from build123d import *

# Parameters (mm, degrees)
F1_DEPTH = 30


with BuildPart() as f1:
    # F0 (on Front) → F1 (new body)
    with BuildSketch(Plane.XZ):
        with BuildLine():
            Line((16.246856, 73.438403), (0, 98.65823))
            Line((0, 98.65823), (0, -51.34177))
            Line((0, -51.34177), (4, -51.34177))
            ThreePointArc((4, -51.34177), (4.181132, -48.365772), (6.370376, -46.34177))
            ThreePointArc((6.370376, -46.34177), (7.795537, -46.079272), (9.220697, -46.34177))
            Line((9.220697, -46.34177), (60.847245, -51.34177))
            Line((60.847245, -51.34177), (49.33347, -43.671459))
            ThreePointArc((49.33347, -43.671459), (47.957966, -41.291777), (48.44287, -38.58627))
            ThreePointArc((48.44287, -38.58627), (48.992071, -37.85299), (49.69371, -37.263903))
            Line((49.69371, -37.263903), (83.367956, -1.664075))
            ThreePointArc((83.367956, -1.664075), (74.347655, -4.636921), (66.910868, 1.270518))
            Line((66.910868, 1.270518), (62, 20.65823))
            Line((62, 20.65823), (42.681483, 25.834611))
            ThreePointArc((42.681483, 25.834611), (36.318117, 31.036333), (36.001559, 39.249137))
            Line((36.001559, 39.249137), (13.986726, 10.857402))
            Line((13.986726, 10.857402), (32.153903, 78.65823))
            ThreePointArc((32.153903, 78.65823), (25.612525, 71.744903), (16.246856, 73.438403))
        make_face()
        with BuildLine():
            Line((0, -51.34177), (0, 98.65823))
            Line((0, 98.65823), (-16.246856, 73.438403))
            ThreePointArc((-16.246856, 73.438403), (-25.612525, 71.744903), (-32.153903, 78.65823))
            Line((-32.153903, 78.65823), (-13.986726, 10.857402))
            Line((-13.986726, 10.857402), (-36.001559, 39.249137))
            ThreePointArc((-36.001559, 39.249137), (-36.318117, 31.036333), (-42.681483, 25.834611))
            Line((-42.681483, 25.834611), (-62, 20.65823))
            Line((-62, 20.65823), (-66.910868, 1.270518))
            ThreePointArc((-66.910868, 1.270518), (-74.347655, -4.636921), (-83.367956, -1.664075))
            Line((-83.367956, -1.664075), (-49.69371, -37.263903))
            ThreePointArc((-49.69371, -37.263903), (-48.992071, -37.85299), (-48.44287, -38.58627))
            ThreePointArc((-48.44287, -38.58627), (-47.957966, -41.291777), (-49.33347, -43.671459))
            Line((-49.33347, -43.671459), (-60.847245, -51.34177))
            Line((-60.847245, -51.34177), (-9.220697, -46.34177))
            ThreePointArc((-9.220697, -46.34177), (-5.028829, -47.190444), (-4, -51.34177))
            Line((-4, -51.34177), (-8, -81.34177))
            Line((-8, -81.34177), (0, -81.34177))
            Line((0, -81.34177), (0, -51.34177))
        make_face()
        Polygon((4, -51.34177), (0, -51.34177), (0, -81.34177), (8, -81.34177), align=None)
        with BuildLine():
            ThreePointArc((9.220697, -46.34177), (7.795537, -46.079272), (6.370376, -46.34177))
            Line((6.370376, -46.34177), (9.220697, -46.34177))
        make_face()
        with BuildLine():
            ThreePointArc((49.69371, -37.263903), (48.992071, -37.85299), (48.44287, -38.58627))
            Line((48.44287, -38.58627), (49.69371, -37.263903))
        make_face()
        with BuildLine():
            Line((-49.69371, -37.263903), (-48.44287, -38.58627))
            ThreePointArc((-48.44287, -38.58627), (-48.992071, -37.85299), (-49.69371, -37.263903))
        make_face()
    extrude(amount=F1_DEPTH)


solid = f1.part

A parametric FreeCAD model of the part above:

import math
import FreeCAD as App
import Part
import Sketcher
Q = App.Units.Quantity

doc = App.newDocument("Part")
body = doc.addObject("PartDesign::Body", "Body")

# Sketch on XZ plane
sketch1 = body.newObject("Sketcher::SketchObject", "Sketch")
sketch1.AttachmentSupport = (doc.getObject("XZ_Plane"), [""])
sketch1.MapMode = "FlatFace"
sketch1.addGeometry(Part.ArcOfCircle(Part.Circle(App.Vector(22.5, 81.2, 0), App.Vector(0, 0, 1), 10), math.radians(-129), math.radians(-15)), False)
sketch1.addGeometry(Part.LineSegment(App.Vector(16.2, 73.4, 0), App.Vector(0, 98.7, 0)), False)
sketch1.addGeometry(Part.LineSegment(App.Vector(0, 98.7, 0), App.Vector(-16.2, 73.4, 0)), False)
sketch1.addGeometry(Part.ArcOfCircle(Part.Circle(App.Vector(-22.5, 81.2, 0), App.Vector(0, 0, 1), 10), math.radians(-165), math.radians(-51)), False)
sketch1.addGeometry(Part.LineSegment(App.Vector(-32.2, 78.7, 0), App.Vector(-14, 10.9, 0)), False)
sketch1.addGeometry(Part.LineSegment(App.Vector(-14, 10.9, 0), App.Vector(-36, 39.2, 0)), False)
sketch1.addGeometry(Part.ArcOfCircle(Part.Circle(App.Vector(-45.3, 35.5, 0), App.Vector(0, 0, 1), 10), math.radians(-75), math.radians(22)), False)
sketch1.addGeometry(Part.LineSegment(App.Vector(-42.7, 25.8, 0), App.Vector(-62, 20.7, 0)), False)
sketch1.addGeometry(Part.LineSegment(App.Vector(-62, 20.7, 0), App.Vector(-66.9, 1.3, 0)), False)
sketch1.addGeometry(Part.ArcOfCircle(Part.Circle(App.Vector(-76.1, 5.2, 0), App.Vector(0, 0, 1), 10), math.radians(-137), math.radians(-23)), False)
sketch1.addGeometry(Part.LineSegment(App.Vector(-83.4, -1.7, 0), App.Vector(-49.7, -37.3, 0)), False)
sketch1.addGeometry(Part.LineSegment(App.Vector(-49.7, -37.3, 0), App.Vector(-48.4, -38.6, 0)), False)
sketch1.addGeometry(Part.ArcOfCircle(Part.Circle(App.Vector(-51.9, -40.6, 0), App.Vector(0, 0, 1), 4), math.radians(-50), math.radians(30)), False)
sketch1.addGeometry(Part.LineSegment(App.Vector(-49.3, -43.7, 0), App.Vector(-60.8, -51.3, 0)), False)
sketch1.addGeometry(Part.LineSegment(App.Vector(-60.8, -51.3, 0), App.Vector(-9.2, -46.3, 0)), False)
sketch1.addGeometry(Part.ArcOfCircle(Part.Circle(App.Vector(-7.8, -50.1, 0), App.Vector(0, 0, 1), 4), math.radians(-18), math.radians(111)), False)
sketch1.addGeometry(Part.LineSegment(App.Vector(-4, -51.3, 0), App.Vector(-8, -81.3, 0)), False)
sketch1.addGeometry(Part.LineSegment(App.Vector(-8, -81.3, 0), App.Vector(8, -81.3, 0)), False)
sketch1.addGeometry(Part.LineSegment(App.Vector(8, -81.3, 0), App.Vector(4, -51.3, 0)), False)
sketch1.addGeometry(Part.ArcOfCircle(Part.Circle(App.Vector(7.8, -50.1, 0), App.Vector(0, 0, 1), 4), math.radians(111), math.radians(198)), False)
sketch1.addGeometry(Part.LineSegment(App.Vector(6.4, -46.3, 0), App.Vector(9.2, -46.3, 0)), False)
sketch1.addGeometry(Part.LineSegment(App.Vector(9.2, -46.3, 0), App.Vector(60.8, -51.3, 0)), False)
sketch1.addGeometry(Part.LineSegment(App.Vector(60.8, -51.3, 0), App.Vector(49.3, -43.7, 0)), False)
sketch1.addGeometry(Part.ArcOfCircle(Part.Circle(App.Vector(51.9, -40.6, 0), App.Vector(0, 0, 1), 4), math.radians(150), math.radians(230)), False)
sketch1.addGeometry(Part.LineSegment(App.Vector(48.4, -38.6, 0), App.Vector(49.7, -37.3, 0)), False)
sketch1.addGeometry(Part.LineSegment(App.Vector(49.7, -37.3, 0), App.Vector(83.4, -1.7, 0)), False)
sketch1.addGeometry(Part.ArcOfCircle(Part.Circle(App.Vector(76.1, 5.2, 0), App.Vector(0, 0, 1), 10), math.radians(-157), math.radians(-43)), False)
sketch1.addGeometry(Part.LineSegment(App.Vector(66.9, 1.3, 0), App.Vector(62, 20.7, 0)), False)
sketch1.addGeometry(Part.LineSegment(App.Vector(62, 20.7, 0), App.Vector(42.7, 25.8, 0)), False)
sketch1.addGeometry(Part.ArcOfCircle(Part.Circle(App.Vector(45.3, 35.5, 0), App.Vector(0, 0, 1), 10), math.radians(158), math.radians(255)), False)
sketch1.addGeometry(Part.LineSegment(App.Vector(36, 39.2, 0), App.Vector(14, 10.9, 0)), False)
sketch1.addGeometry(Part.LineSegment(App.Vector(14, 10.9, 0), App.Vector(32.2, 78.7, 0)), False)
sketch1.addConstraint(Sketcher.Constraint("Coincident", 0, 1, 1, 1))
sketch1.addConstraint(Sketcher.Constraint("Coincident", 1, 2, 2, 1))
sketch1.addConstraint(Sketcher.Constraint("Coincident", 2, 2, 3, 2))
sketch1.addConstraint(Sketcher.Constraint("Tangent", 3, 1, 4, 1))
sketch1.addConstraint(Sketcher.Constraint("Coincident", 4, 2, 5, 1))
sketch1.addConstraint(Sketcher.Constraint("Coincident", 5, 2, 6, 2))
sketch1.addConstraint(Sketcher.Constraint("Tangent", 6, 1, 7, 1))
sketch1.addConstraint(Sketcher.Constraint("Coincident", 7, 2, 8, 1))
sketch1.addConstraint(Sketcher.Constraint("Coincident", 8, 2, 9, 2))
sketch1.addConstraint(Sketcher.Constraint("Tangent", 9, 1, 10, 1))
sketch1.addConstraint(Sketcher.Constraint("Coincident", 10, 2, 11, 1))
sketch1.addConstraint(Sketcher.Constraint("Coincident", 11, 2, 12, 2))
sketch1.addConstraint(Sketcher.Constraint("Coincident", 12, 1, 13, 1))
sketch1.addConstraint(Sketcher.Constraint("Coincident", 13, 2, 14, 1))
sketch1.addConstraint(Sketcher.Constraint("Coincident", 14, 2, 15, 2))
sketch1.addConstraint(Sketcher.Constraint("Coincident", 15, 1, 16, 1))
sketch1.addConstraint(Sketcher.Constraint("Coincident", 16, 2, 17, 1))
sketch1.addConstraint(Sketcher.Constraint("Coincident", 17, 2, 18, 1))
sketch1.addConstraint(Sketcher.Constraint("Coincident", 18, 2, 19, 2))
sketch1.addConstraint(Sketcher.Constraint("Coincident", 19, 1, 20, 1))
sketch1.addConstraint(Sketcher.Constraint("Coincident", 20, 2, 21, 1))
sketch1.addConstraint(Sketcher.Constraint("Coincident", 21, 2, 22, 1))
sketch1.addConstraint(Sketcher.Constraint("Coincident", 22, 2, 23, 2))
sketch1.addConstraint(Sketcher.Constraint("Coincident", 23, 1, 24, 1))
sketch1.addConstraint(Sketcher.Constraint("Coincident", 24, 2, 25, 1))
sketch1.addConstraint(Sketcher.Constraint("Tangent", 25, 2, 26, 2))
sketch1.addConstraint(Sketcher.Constraint("Coincident", 26, 1, 27, 1))
sketch1.addConstraint(Sketcher.Constraint("Coincident", 27, 2, 28, 1))
sketch1.addConstraint(Sketcher.Constraint("Tangent", 28, 2, 29, 2))
sketch1.addConstraint(Sketcher.Constraint("Coincident", 29, 1, 30, 1))
sketch1.addConstraint(Sketcher.Constraint("Coincident", 30, 2, 31, 1))
sketch1.addConstraint(Sketcher.Constraint("Tangent", 31, 2, 0, 2))
sketch1.addConstraint(Sketcher.Constraint("Horizontal", 17))
sketch1.addConstraint(Sketcher.Constraint("Horizontal", 20))
sketch1.addConstraint(Sketcher.Constraint("Equal", 0, 3))
sketch1.addConstraint(Sketcher.Constraint("Equal", 3, 6))
sketch1.addConstraint(Sketcher.Constraint("Equal", 6, 9))
sketch1.addConstraint(Sketcher.Constraint("Equal", 12, 15))
sketch1.addConstraint(Sketcher.Constraint("Equal", 15, 19))
sketch1.addConstraint(Sketcher.Constraint("Equal", 19, 23))
sketch1.addConstraint(Sketcher.Constraint("Equal", 9, 26))
sketch1.addConstraint(Sketcher.Constraint("Equal", 26, 29))
sketch1.addConstraint(Sketcher.Constraint("Symmetric", 0, 3, 3, 3, -2))
sketch1.addConstraint(Sketcher.Constraint("Symmetric", 15, 3, 19, 3, -2))
sketch1.addConstraint(Sketcher.Constraint("Symmetric", 12, 3, 23, 3, -2))
sketch1.addConstraint(Sketcher.Constraint("Symmetric", 9, 3, 26, 3, -2))
sketch1.addConstraint(Sketcher.Constraint("Symmetric", 6, 3, 29, 3, -2))
sketch1.addConstraint(Sketcher.Constraint("Symmetric", 14, 2, 20, 2, -2))
sketch1.addConstraint(Sketcher.Constraint("Symmetric", 13, 2, 21, 2, -2))
sketch1.addConstraint(Sketcher.Constraint("Symmetric", 10, 2, 24, 2, -2))
sketch1.addConstraint(Sketcher.Constraint("Symmetric", 7, 2, 27, 2, -2))
sketch1.addConstraint(Sketcher.Constraint("Symmetric", 4, 2, 30, 2, -2))
sketch1.addConstraint(Sketcher.Constraint("PointOnObject", 1, 2, -2))
sketch1.addConstraint(Sketcher.Constraint("Perpendicular", 4, 7))
sketch1.addConstraint(Sketcher.Constraint("Parallel", 10, 11))
sketch1.addConstraint(Sketcher.Constraint("Parallel", 24, 25))
sketch1.addConstraint(Sketcher.Constraint("Horizontal", 0, 1, 2, 2))
sketch1.addConstraint(Sketcher.Constraint("Horizontal", 13, 2, 15, 1))
sketch1.addConstraint(Sketcher.Constraint("Horizontal", 15, 1, 18, 2))
sketch1.addConstraint(Sketcher.Constraint("Horizontal", 12, 1, 22, 2))
sketch1.addConstraint(Sketcher.Constraint("Horizontal", 8, 2, 26, 1))
sketch1.addConstraint(Sketcher.Constraint("Horizontal", 5, 2, 29, 1))
sketch1.addConstraint(Sketcher.Constraint("Equal", 7, 8))
sketch1.addConstraint(Sketcher.Constraint("Equal", 16, 18))
sketch1.addConstraint(Sketcher.Constraint("Radius", 0, 9.999999))
sketch1.addConstraint(Sketcher.Constraint("Radius", 12, 4.000001))
sketch1.addConstraint(Sketcher.Constraint("DistanceX", 17, 1, 17, 2, 16.0))
sketch1.addConstraint(Sketcher.Constraint("Angle", 4, Q("-75 deg")))
sketch1.addConstraint(Sketcher.Constraint("Distance", 1, 30.0))
sketch1.addConstraint(Sketcher.Constraint("Distance", 7, 20.0))
sketch1.addConstraint(Sketcher.Constraint("DistanceX", 7, 2, -1, 1, 62.0))
sketch1.addConstraint(Sketcher.Constraint("DistanceX", 15, 1, -1, 1, 4.0))
sketch1.addConstraint(Sketcher.Constraint("DistanceY", 3, 1, 1, 2, 20.0))
sketch1.addConstraint(Sketcher.Constraint("DistanceY", 15, 1, 14, 2, 5.0))
sketch1.addConstraint(Sketcher.Constraint("DistanceY", 16, 2, 15, 1, 30.0))
sketch1.addConstraint(Sketcher.Constraint("DistanceY", 4, 2, 2, 2, 62.581001))
sketch1.addConstraint(Sketcher.Constraint("DistanceY", 19, 3, 23, 1, 11.493001))
sketch1.addConstraint(Sketcher.Constraint("DistanceX", 23, 1, 26, 1, 18.467998))
sketch1.addConstraint(Sketcher.Constraint("DistanceX", 20, 1, 20, 2, 2.850321))
sketch1.addConstraint(Sketcher.Constraint("DistanceX", 3, 3, 0, 1, 38.741501))
sketch1.addConstraint(Sketcher.Constraint("DistanceX", 12, 1, 11, 2, 0.8906))
sketch1.addConstraint(Sketcher.Constraint("Distance", 5, 35.926919))
sketch1.addConstraint(Sketcher.Constraint("DistanceY", -1, 1, 0, 3, 81.246419))
sketch1.addConstraint(Sketcher.Constraint("DistanceY", -1, 1, 6, 3, 35.493869))
sketch1.addConstraint(Sketcher.Constraint("DistanceY", 19, 3, -1, 1, 50.079271))
sketch1.addConstraint(Sketcher.Constraint("DistanceX", 10, 2, -1, 1, 49.69371))
sketch1.addConstraint(Sketcher.Constraint("DistanceX", 11, 2, -1, 1, 48.44287))
sketch1.addConstraint(Sketcher.Constraint("DistanceY", 12, 1, -1, 1, 43.671459))
sketch1.addConstraint(Sketcher.Constraint("DistanceX", 9, 3, 6, 3, 30.833469))
sketch1.addConstraint(Sketcher.Constraint("DistanceX", 19, 3, 21, 2, 53.051709))
pad1 = body.newObject("PartDesign::Pad", "Pad")
pad1.Profile = sketch1
pad1.Length = 30

doc.recompute()
